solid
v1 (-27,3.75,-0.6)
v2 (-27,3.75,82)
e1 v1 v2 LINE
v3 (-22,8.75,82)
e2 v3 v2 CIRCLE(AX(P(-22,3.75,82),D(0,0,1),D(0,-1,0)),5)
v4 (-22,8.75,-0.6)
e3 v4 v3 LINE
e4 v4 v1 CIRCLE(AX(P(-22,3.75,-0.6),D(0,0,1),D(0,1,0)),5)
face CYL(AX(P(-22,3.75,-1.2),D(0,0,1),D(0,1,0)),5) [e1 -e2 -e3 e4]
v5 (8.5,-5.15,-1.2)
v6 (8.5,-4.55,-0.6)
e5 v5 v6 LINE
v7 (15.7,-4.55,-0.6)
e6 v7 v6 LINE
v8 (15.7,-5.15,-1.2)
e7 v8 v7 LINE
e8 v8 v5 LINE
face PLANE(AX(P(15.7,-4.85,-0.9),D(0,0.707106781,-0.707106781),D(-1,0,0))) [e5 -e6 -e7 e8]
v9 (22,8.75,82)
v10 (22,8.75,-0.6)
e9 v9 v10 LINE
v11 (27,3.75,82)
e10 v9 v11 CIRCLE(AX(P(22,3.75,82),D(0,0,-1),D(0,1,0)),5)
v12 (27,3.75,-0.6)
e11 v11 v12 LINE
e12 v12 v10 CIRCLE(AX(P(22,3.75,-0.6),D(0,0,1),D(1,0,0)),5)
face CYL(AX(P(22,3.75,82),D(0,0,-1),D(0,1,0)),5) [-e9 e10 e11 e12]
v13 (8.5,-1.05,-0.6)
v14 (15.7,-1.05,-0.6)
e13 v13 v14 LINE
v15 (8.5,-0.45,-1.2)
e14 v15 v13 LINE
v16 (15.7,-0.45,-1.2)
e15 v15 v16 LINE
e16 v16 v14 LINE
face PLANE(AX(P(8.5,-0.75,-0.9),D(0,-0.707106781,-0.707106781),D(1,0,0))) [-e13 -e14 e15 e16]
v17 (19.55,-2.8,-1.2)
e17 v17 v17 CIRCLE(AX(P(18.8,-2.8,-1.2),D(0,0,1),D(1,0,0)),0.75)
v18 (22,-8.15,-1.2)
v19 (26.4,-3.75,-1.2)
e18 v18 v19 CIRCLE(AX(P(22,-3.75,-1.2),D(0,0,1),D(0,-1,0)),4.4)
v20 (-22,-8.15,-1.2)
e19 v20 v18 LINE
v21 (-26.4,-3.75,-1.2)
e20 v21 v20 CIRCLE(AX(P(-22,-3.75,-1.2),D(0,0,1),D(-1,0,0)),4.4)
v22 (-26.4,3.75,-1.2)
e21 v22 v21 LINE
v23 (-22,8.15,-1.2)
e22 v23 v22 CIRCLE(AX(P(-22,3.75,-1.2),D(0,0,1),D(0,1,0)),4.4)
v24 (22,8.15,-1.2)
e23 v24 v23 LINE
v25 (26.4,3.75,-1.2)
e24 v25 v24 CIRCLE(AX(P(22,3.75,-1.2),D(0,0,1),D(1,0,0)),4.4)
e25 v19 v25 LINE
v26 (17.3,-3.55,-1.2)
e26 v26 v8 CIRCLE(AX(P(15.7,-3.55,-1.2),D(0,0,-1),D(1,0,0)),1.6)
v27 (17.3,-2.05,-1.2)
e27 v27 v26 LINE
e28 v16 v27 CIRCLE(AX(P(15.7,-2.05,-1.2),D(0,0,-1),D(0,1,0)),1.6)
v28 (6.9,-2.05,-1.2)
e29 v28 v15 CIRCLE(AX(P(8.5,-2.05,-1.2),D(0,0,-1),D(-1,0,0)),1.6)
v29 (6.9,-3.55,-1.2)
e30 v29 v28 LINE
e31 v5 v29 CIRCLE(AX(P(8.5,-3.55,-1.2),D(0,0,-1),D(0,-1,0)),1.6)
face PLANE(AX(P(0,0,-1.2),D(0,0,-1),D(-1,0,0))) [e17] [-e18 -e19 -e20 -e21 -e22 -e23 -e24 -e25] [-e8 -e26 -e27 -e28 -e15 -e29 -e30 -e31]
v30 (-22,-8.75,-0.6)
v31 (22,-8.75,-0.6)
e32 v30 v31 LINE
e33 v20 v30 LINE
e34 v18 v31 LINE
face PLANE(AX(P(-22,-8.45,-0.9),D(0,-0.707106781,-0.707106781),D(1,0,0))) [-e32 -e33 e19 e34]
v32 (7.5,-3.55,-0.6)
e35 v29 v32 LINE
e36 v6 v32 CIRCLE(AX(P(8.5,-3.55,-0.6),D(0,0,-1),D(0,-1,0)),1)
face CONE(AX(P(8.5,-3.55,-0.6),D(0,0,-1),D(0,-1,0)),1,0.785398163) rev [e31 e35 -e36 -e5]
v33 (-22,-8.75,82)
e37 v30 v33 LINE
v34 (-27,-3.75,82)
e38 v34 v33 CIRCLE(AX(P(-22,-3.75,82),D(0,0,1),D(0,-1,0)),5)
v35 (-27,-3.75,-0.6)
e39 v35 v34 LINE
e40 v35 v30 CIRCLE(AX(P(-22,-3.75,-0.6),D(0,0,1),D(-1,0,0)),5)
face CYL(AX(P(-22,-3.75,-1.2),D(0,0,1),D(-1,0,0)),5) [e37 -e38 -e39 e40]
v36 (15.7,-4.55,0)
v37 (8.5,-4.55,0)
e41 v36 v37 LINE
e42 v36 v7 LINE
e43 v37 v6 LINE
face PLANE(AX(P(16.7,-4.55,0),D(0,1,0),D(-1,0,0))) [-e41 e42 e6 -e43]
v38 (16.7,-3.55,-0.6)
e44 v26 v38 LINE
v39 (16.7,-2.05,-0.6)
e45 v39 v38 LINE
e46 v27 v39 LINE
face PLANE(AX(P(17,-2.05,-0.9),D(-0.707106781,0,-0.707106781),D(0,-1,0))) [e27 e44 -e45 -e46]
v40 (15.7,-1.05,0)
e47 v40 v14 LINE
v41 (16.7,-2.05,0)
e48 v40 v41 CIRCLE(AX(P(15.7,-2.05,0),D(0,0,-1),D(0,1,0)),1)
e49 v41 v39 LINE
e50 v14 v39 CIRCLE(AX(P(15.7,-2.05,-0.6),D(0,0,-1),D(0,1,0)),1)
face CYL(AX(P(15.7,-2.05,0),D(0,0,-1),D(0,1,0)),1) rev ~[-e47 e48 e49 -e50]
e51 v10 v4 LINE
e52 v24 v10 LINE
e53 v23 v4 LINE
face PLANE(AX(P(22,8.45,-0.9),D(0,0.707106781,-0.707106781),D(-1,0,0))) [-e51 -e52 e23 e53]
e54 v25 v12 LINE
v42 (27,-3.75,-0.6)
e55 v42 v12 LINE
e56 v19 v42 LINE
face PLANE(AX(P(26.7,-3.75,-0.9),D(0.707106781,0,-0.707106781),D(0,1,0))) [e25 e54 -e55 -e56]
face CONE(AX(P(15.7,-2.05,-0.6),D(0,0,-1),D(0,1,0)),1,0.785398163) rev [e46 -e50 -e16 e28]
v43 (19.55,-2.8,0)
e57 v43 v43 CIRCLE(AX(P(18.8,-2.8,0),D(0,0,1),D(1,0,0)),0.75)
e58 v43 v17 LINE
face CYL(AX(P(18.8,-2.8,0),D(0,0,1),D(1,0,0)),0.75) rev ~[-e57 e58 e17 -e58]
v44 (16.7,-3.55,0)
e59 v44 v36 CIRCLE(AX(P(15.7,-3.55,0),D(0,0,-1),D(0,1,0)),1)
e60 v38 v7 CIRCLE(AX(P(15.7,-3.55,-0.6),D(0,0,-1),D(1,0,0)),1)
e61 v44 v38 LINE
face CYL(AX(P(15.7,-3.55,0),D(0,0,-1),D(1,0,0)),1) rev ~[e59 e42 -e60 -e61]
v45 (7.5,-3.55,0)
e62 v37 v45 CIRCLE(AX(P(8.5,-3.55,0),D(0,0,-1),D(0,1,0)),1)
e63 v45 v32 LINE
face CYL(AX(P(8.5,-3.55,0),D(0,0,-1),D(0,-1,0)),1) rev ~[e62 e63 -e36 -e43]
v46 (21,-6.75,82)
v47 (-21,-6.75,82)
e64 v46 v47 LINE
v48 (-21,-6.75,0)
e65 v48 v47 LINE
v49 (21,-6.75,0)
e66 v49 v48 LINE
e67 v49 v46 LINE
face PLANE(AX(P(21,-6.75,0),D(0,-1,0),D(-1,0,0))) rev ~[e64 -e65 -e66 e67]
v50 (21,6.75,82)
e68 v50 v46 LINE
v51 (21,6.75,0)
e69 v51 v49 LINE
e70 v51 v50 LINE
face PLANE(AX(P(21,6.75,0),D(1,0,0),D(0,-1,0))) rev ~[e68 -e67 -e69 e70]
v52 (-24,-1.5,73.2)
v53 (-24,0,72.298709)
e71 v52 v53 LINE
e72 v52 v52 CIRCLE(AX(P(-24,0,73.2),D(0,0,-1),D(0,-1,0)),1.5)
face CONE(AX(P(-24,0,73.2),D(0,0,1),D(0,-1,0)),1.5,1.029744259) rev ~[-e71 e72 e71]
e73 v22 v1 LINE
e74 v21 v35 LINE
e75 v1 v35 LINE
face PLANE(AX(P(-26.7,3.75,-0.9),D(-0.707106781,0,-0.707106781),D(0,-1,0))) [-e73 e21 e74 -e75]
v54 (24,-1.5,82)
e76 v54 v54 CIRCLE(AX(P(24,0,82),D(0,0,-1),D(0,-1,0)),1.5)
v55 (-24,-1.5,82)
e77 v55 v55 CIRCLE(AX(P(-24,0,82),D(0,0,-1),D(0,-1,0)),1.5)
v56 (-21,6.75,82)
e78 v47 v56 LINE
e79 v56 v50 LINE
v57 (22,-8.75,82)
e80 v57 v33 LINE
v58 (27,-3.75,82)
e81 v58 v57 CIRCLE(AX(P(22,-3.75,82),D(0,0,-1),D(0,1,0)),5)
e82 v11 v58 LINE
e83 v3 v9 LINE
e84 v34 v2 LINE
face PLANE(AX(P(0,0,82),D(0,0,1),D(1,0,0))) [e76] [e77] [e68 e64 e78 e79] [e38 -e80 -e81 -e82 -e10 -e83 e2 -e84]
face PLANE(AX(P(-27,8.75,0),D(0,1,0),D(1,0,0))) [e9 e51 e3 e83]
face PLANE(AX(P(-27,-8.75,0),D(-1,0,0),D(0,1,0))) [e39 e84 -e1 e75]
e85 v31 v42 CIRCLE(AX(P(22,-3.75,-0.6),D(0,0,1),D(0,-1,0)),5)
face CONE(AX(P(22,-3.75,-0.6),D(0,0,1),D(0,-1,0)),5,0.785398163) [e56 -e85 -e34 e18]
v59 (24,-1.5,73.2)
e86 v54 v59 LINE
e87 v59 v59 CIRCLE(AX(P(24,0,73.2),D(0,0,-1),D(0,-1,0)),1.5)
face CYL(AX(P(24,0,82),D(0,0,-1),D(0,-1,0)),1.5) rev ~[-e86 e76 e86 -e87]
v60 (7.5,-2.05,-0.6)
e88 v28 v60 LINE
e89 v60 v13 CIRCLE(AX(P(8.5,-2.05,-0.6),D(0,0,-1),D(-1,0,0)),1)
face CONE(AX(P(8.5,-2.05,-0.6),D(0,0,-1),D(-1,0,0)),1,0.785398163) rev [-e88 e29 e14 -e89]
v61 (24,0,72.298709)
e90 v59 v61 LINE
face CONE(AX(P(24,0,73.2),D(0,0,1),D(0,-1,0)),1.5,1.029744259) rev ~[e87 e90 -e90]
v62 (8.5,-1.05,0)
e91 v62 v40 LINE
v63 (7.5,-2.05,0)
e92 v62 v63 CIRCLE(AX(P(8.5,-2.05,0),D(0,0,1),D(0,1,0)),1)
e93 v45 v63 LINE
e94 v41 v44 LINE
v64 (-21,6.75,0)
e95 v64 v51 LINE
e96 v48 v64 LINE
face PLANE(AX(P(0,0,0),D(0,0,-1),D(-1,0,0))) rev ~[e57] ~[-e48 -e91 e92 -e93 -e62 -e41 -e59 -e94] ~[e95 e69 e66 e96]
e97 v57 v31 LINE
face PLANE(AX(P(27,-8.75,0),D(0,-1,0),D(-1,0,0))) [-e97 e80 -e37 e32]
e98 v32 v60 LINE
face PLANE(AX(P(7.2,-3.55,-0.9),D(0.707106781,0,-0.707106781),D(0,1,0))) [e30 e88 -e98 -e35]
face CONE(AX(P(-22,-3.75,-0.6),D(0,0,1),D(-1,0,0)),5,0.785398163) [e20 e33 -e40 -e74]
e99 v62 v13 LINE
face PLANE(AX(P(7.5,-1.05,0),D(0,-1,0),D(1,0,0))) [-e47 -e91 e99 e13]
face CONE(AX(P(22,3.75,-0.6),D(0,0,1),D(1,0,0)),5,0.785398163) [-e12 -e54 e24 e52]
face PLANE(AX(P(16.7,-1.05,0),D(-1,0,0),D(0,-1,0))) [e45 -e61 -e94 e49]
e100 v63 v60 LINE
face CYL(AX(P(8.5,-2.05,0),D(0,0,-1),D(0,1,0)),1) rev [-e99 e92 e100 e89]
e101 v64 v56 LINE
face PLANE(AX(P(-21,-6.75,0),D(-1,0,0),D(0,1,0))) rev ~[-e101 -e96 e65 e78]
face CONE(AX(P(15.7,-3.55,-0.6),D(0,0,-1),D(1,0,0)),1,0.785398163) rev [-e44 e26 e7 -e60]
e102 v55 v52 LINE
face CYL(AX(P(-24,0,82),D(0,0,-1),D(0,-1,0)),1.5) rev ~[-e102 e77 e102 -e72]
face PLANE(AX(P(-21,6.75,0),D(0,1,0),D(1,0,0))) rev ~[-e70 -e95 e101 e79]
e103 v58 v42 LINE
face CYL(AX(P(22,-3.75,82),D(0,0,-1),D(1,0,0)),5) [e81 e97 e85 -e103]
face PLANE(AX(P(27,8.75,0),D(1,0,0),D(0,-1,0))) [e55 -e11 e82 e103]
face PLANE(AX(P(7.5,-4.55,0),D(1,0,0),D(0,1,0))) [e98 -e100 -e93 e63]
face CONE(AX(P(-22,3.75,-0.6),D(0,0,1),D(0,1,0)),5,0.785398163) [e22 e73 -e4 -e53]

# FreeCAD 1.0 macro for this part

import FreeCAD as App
import Part
import Sketcher

V = App.Vector
Q = App.Units.Quantity


def edges_at(feature, points):
    """Names of the edges that pass closest to the given points."""
    edges = feature.Shape.Edges
    near = lambda p: min(range(len(edges)), key=lambda i: edges[i].distToShape(Part.Vertex(*p))[0])
    return sorted({f"Edge{near(p) + 1}" for p in points})


def add_polygon(sketch, points):
    """Adds a closed chain of lines whose ends are joined by coincident constraints."""
    first, n = sketch.GeometryCount, len(points)
    for a, b in zip(points, points[1:] + points[:1]):
        sketch.addGeometry(Part.LineSegment(App.Vector(*a, 0), App.Vector(*b, 0)), False)
    for i in range(n):
        sketch.addConstraint(Sketcher.Constraint("Coincident", first + i, 2, first + (i + 1) % n, 1))

doc = App.newDocument("Part")
body = doc.addObject("PartDesign::Body", "Body")

# Sketch on XY plane
sketch1 = doc.addObject("Sketcher::SketchObject", "Sketch")
body.addObject(sketch1)
sketch1.AttachmentSupport = (doc.XY_Plane, [""])
sketch1.MapMode = "FlatFace"
add_polygon(sketch1, [(27, 9), (-27, 9), (-27, -9), (27, -9)])  # lines 0-3
add_polygon(sketch1, [(-21, -7), (-21, 7), (21, 7), (21, -7)])  # lines 4-7
sketch1.addConstraint([
    Sketcher.Constraint("Horizontal", 0),
    Sketcher.Constraint("Vertical", 1),
    Sketcher.Constraint("Horizontal", 2),
    Sketcher.Constraint("Vertical", 3),
    Sketcher.Constraint("Vertical", 4),
    Sketcher.Constraint("Horizontal", 5),
    Sketcher.Constraint("Vertical", 6),
    Sketcher.Constraint("Horizontal", 7),
    Sketcher.Constraint("Symmetric", 0, 2, 2, 2, -1, 1),
    Sketcher.Constraint("Symmetric", 4, 2, 6, 2, -1, 1),
    Sketcher.Constraint("DistanceX", 5, 1, 5, 2, Q("42 mm")),
    Sketcher.Constraint("DistanceY", 4, 1, 4, 2, Q("13.5 mm")),
    Sketcher.Constraint("DistanceX", 0, 2, 4, 2, Q("6 mm")),
    Sketcher.Constraint("DistanceY", 4, 2, 0, 2, Q("2 mm")),
])
pad1 = doc.addObject("PartDesign::Pad", "Pad")
body.addObject(pad1)
pad1.Profile = sketch1
pad1.Length = 82

# Sketch on XY plane
sketch2 = doc.addObject("Sketcher::SketchObject", "Sketch001")
body.addObject(sketch2)
sketch2.AttachmentSupport = (doc.XY_Plane, [""])
sketch2.MapMode = "FlatFace"
add_polygon(sketch2, [(27, 9), (27, -9), (-27, -9), (-27, 9)])  # lines 0-3
sketch2.addConstraint([
    Sketcher.Constraint("Vertical", 0),
    Sketcher.Constraint("Horizontal", 1),
    Sketcher.Constraint("Vertical", 2),
    Sketcher.Constraint("Horizontal", 3),
    Sketcher.Constraint("Symmetric", 0, 2, 2, 2, -1, 1),
    Sketcher.Constraint("DistanceX", 1, 2, 1, 1, Q("54 mm")),
    Sketcher.Constraint("DistanceY", 0, 2, 0, 1, Q("17.5 mm")),
])
pad2 = doc.addObject("PartDesign::Pad", "Pad001")
body.addObject(pad2)
pad2.Profile = sketch2
pad2.Length = 1.2
pad2.Reversed = True
doc.recompute()

fillet = doc.addObject("PartDesign::Fillet", "Fillet")
body.addObject(fillet)
fillet.Base = (pad2, edges_at(pad2, [
    (-27, 8.75, 40.4),
    (-27, -8.75, 40.4),
    (27, 8.75, 40.4),
    (27, -8.75, 40.4),
]))
fillet.Radius = 5

# Sketch on XY plane
sketch3 = doc.addObject("Sketcher::SketchObject", "Sketch002")
body.addObject(sketch3)
sketch3.AttachmentSupport = (doc.XY_Plane, [""])
sketch3.MapMode = "FlatFace"
sketch3.AttachmentOffset = App.Placement(V(0, 0, 82), App.Rotation())
sketch3.addGeometry([
    Part.Circle(V(-24, 0, 0), V(0, 0, 1), 1.5),
    Part.Circle(V(24, 0, 0), V(0, 0, 1), 1.5),
], False)
sketch3.addConstraint([
    Sketcher.Constraint("Equal", 0, 1),
    Sketcher.Constraint("Symmetric", 0, 3, 1, 3, -1, 1),
    Sketcher.Constraint("PointOnObject", 0, 3, -1),
    Sketcher.Constraint("Diameter", 0, Q("3 mm")),
    Sketcher.Constraint("DistanceX", 0, 3, -1, 1, Q("24 mm")),
])
doc.recompute()
hole = doc.addObject("PartDesign::Hole", "Hole")
body.addObject(hole)
hole.Profile = sketch3
hole.ThreadType = "None"
hole.Diameter = 3
hole.DepthType = "Dimension"
hole.Depth = 8.8
hole.DrillPoint = "Angled"
hole.DrillPointAngle = 118

# Sketch on XY plane
sketch4 = doc.addObject("Sketcher::SketchObject", "Sketch003")
body.addObject(sketch4)
sketch4.AttachmentSupport = (doc.XY_Plane, [""])
sketch4.MapMode = "FlatFace"
add_polygon(sketch4, [(16.7, -1.1), (7.5, -1.1), (7.5, -4.5), (16.7, -4.5)])  # lines 0-3
sketch4.addConstraint([
    Sketcher.Constraint("Horizontal", 0),
    Sketcher.Constraint("Vertical", 1),
    Sketcher.Constraint("Horizontal", 2),
    Sketcher.Constraint("Vertical", 3),
    Sketcher.Constraint("DistanceX", 0, 2, 0, 1, Q("9.2 mm")),
    Sketcher.Constraint("DistanceY", 1, 2, 1, 1, Q("3.5 mm")),
    Sketcher.Constraint("DistanceX", -1, 1, 0, 2, Q("7.5 mm")),
    Sketcher.Constraint("DistanceY", 0, 2, -1, 1, Q("1.05 mm")),
])
pocket1 = doc.addObject("PartDesign::Pocket", "Pocket")
body.addObject(pocket1)
pocket1.Profile = sketch4
pocket1.Length = 1.2
doc.recompute()

fillet2 = doc.addObject("PartDesign::Fillet", "Fillet001")
body.addObject(fillet2)
fillet2.Base = (pocket1, edges_at(pocket1, [
    (16.7, -1.05, -0.6),
    (16.7, -4.55, -0.6),
    (7.5, -4.55, -0.6),
    (7.5, -1.05, -0.6),
]))
fillet2.Radius = 1

# Sketch on XY plane
sketch5 = doc.addObject("Sketcher::SketchObject", "Sketch004")
body.addObject(sketch5)
sketch5.AttachmentSupport = (doc.XY_Plane, [""])
sketch5.MapMode = "FlatFace"
sketch5.addGeometry(Part.Circle(V(18.8, -2.8, 0), V(0, 0, 1), 0.8), False)
sketch5.addConstraint([
    Sketcher.Constraint("Diameter", 0, Q("1.5 mm")),
    Sketcher.Constraint("DistanceX", -1, 1, 0, 3, Q("18.8 mm")),
    Sketcher.Constraint("DistanceY", 0, 3, -1, 1, Q("2.8 mm")),
])
pocket2 = doc.addObject("PartDesign::Pocket", "Pocket001")
body.addObject(pocket2)
pocket2.Profile = sketch5
pocket2.Length = 1.2
doc.recompute()

chamfer = doc.addObject("PartDesign::Chamfer", "Chamfer")
body.addObject(chamfer)
chamfer.Base = (pocket2, edges_at(pocket2, [
    (12.1, -1.05, -1.2),
    (7.793, -1.343, -1.2),
    (7.5, -2.8, -1.2),
    (7.793, -4.257, -1.2),
    (12.1, -4.55, -1.2),
    (16.407, -4.257, -1.2),
    (16.7, -2.8, -1.2),
    (16.407, -1.343, -1.2),
]))
chamfer.Size = 0.6
doc.recompute()

chamfer2 = doc.addObject("PartDesign::Chamfer", "Chamfer001")
body.addObject(chamfer2)
chamfer2.Base = (chamfer, edges_at(chamfer, [
    (0, 8.75, -1.2),
    (25.535, 7.285, -1.2),
    (27, 0, -1.2),
    (25.535, -7.285, -1.2),
    (0, -8.75, -1.2),
    (-25.535, -7.285, -1.2),
    (-27, 0, -1.2),
    (-25.535, 7.285, -1.2),
]))
chamfer2.Size = 0.6

doc.recompute()
